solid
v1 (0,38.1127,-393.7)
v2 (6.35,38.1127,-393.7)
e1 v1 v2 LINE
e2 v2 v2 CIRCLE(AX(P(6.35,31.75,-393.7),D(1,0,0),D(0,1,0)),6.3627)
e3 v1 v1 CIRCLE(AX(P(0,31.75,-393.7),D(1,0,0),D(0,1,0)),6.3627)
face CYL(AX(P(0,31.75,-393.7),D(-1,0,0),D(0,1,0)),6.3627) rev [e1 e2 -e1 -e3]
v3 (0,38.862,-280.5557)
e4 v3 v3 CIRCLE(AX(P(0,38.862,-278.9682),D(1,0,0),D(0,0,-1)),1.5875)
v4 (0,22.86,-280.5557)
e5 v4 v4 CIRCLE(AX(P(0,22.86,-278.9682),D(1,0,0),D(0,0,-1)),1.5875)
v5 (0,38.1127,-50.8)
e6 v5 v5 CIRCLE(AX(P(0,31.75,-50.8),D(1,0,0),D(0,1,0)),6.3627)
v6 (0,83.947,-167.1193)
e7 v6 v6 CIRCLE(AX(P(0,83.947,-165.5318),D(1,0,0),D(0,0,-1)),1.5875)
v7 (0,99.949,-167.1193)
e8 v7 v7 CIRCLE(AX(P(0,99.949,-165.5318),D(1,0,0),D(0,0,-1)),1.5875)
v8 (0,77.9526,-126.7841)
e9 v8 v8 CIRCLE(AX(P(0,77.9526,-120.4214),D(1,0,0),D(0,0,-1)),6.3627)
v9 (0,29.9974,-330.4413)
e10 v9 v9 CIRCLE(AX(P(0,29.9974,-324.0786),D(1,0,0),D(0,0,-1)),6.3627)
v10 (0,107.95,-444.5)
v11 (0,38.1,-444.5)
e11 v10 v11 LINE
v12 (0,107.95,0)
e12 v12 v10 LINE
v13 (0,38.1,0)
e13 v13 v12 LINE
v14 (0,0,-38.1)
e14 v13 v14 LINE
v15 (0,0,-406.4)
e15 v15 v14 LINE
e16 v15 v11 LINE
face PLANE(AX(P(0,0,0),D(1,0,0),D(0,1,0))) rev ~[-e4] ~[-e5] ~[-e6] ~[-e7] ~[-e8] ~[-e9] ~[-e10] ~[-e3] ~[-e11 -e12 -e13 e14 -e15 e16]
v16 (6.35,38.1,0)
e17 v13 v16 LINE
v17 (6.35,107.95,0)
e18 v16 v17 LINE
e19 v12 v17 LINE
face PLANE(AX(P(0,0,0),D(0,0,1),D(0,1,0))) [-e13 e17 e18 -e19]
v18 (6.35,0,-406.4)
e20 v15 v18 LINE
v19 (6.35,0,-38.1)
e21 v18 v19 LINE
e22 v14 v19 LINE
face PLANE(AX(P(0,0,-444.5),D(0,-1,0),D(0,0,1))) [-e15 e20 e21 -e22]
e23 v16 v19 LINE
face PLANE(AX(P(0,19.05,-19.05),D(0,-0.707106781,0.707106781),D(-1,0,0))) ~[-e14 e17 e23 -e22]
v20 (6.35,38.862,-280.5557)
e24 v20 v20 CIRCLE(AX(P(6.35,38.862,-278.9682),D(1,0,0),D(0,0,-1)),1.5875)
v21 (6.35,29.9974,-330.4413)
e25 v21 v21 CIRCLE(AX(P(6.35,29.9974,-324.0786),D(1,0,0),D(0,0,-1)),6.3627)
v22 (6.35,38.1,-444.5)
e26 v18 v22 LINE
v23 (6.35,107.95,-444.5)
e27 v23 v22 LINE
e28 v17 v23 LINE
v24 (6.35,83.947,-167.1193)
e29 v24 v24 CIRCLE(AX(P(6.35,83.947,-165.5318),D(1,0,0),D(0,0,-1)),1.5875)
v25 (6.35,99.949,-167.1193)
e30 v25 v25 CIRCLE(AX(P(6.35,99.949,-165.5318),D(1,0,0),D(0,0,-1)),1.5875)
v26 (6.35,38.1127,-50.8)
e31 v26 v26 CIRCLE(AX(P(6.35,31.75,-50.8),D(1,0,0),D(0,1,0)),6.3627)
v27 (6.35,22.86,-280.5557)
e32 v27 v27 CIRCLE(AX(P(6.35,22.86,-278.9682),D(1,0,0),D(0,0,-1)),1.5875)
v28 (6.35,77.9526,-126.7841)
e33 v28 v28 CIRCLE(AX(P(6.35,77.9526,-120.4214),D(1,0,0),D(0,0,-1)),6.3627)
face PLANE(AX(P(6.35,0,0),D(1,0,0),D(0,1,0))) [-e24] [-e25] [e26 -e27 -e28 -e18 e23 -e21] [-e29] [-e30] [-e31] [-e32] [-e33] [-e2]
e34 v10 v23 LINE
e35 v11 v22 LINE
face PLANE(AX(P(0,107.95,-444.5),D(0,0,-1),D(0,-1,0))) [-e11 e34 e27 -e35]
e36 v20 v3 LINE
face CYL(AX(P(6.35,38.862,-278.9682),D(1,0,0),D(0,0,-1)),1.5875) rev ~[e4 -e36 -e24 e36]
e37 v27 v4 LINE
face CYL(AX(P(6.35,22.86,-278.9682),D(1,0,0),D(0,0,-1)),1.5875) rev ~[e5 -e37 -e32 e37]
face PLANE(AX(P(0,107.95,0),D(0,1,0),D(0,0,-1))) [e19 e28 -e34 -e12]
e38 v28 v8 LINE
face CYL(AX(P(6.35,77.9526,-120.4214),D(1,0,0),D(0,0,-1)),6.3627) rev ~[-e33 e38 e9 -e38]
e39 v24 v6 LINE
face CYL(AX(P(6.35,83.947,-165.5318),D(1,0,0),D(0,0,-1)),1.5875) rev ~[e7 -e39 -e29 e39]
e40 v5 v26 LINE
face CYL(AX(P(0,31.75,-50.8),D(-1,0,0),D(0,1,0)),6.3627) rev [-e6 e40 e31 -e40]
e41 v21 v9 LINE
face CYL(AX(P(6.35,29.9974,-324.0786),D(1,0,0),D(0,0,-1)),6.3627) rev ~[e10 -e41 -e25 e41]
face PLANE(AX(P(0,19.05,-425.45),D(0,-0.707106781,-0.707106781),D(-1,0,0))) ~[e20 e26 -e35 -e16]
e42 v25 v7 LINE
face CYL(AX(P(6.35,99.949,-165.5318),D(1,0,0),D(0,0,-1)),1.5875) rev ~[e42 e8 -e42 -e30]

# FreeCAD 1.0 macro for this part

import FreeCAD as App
import Part
import Sketcher
Q = App.Units.Quantity


def edges_at(feature, points):
    """Names of the edges that pass closest to the given points."""
    edges = feature.Shape.Edges
    near = lambda p: min(range(len(edges)), key=lambda i: edges[i].distToShape(Part.Vertex(*p))[0])
    return sorted({f"Edge{near(p) + 1}" for p in points})

doc = App.newDocument("Part")
params = doc.addObject("Spreadsheet::Sheet", "Params")
for row, (alias, value) in enumerate([
    ("sketch1_diameter", "0.501 in"),
    ("sketch1_height", "17.5 in"),
    ("sketch1_width", "4.25 in"),
    ("pad1_length", "0.25 in"),
    ("chamfer_size", "1.5 in"),
    ("chamfer2_size", "1.5 in"),
    ("sketch2_diameter", "0.501 in"),
    ("pocket1_length", "1 in"),
    ("sketch3_diameter", "0.125 in"),
    ("pocket2_length", "1 in"),
], start=1):
    params.set(f"A{row}", alias)
    params.set(f"B{row}", "=" + value)
    params.setAlias(f"B{row}", alias)

body = doc.addObject("PartDesign::Body", "Body")

# Sketch on YZ plane
sketch1 = body.newObject("Sketcher::SketchObject", "Sketch")
sketch1.AttachmentSupport = (doc.getObject("YZ_Plane"), [""])
sketch1.MapMode = "FlatFace"
sketch1.addGeometry([
    Part.LineSegment(App.Vector(107.95, 0, 0), App.Vector(0, 0, 0)),  # 0
    Part.LineSegment(App.Vector(0, 0, 0), App.Vector(0, -444.5, 0)),  # 1
    Part.LineSegment(App.Vector(0, -444.5, 0), App.Vector(107.95, -444.5, 0)),  # 2
    Part.LineSegment(App.Vector(107.95, -444.5, 0), App.Vector(107.95, 0, 0)),  # 3
    Part.Circle(App.Vector(31.75, -393.7, 0), App.Vector(0, 0, 1), 6.3627),  # 4
    Part.Circle(App.Vector(31.75, -50.8, 0), App.Vector(0, 0, 1), 6.3627),  # 5
], False)
sketch1.addConstraint([
    Sketcher.Constraint("Coincident", 0, 2, 1, 1),
    Sketcher.Constraint("Coincident", 1, 2, 2, 1),
    Sketcher.Constraint("Coincident", 2, 2, 3, 1),
    Sketcher.Constraint("Coincident", 3, 2, 0, 1),
    Sketcher.Constraint("Horizontal", 0),
    Sketcher.Constraint("Vertical", 1),
    Sketcher.Constraint("Horizontal", 2),
    Sketcher.Constraint("Vertical", 3),
    Sketcher.Constraint("Coincident", 0, 2, -1, 1),
    Sketcher.Constraint("Equal", 4, 5),
    Sketcher.Constraint("Vertical", 4, 3, 5, 3),
    Sketcher.Constraint("Diameter", 4, Q("0.501 in")),
    Sketcher.Constraint("DistanceY", 1, 2, 1, 1, Q("17.5 in")),
    Sketcher.Constraint("DistanceY", 5, 3, -1, 1, Q("2 in")),
    Sketcher.Constraint("DistanceY", 1, 2, 4, 3, Q("2 in")),
    Sketcher.Constraint("DistanceX", 0, 2, 0, 1, Q("4.25 in")),
    Sketcher.Constraint("DistanceX", -1, 1, 4, 3, Q("1.25 in")),
])
sketch1.setExpression("Constraints[11]", "Params.sketch1_diameter")
sketch1.setExpression("Constraints[12]", "Params.sketch1_height")
sketch1.setExpression("Constraints[15]", "Params.sketch1_width")
pad1 = body.newObject("PartDesign::Pad", "Pad")
pad1.Profile = sketch1
pad1.setExpression("Length", "Params.pad1_length")
doc.recompute()

chamfer = body.newObject("PartDesign::Chamfer", "Chamfer")
chamfer.Base = (pad1, edges_at(pad1, [(3.175, 0, 0)]))
chamfer.setExpression("Size", "Params.chamfer_size")
doc.recompute()

chamfer2 = body.newObject("PartDesign::Chamfer", "Chamfer001")
chamfer2.Base = (chamfer, edges_at(chamfer, [(3.175, 0, -444.5)]))
chamfer2.setExpression("Size", "Params.chamfer2_size")

# Sketch on YZ plane
sketch2 = body.newObject("Sketcher::SketchObject", "Sketch001")
sketch2.AttachmentSupport = (doc.getObject("YZ_Plane"), [""])
sketch2.MapMode = "FlatFace"
sketch2.AttachmentOffset = App.Placement(App.Vector(0, 0, 0.25 * 25.4), App.Rotation())
sketch2.addGeometry([
    Part.Circle(App.Vector(77.9526, -120.4214, 0), App.Vector(0, 0, 1), 6.3627),
    Part.Circle(App.Vector(29.9974, -324.0786, 0), App.Vector(0, 0, 1), 6.3627),
], False)
sketch2.addConstraint([
    Sketcher.Constraint("Equal", 0, 1),
    Sketcher.Constraint("Diameter", 0, Q("0.501 in")),
    Sketcher.Constraint("DistanceY", 0, 3, -1, 1, Q("4.741 in")),
    Sketcher.Constraint("DistanceX", -1, 1, 1, 3, Q("1.181 in")),
    Sketcher.Constraint("DistanceX", -1, 1, 0, 3, Q("3.069 in")),
    Sketcher.Constraint("DistanceY", 1, 3, -1, 1, Q("12.759 in")),
])
sketch2.setExpression("Constraints[1]", "Params.sketch2_diameter")
pocket1 = body.newObject("PartDesign::Pocket", "Pocket")
pocket1.Profile = sketch2
pocket1.setExpression("Length", "Params.pocket1_length")

# Sketch on YZ plane
sketch3 = body.newObject("Sketcher::SketchObject", "Sketch002")
sketch3.AttachmentSupport = (doc.getObject("YZ_Plane"), [""])
sketch3.MapMode = "FlatFace"
sketch3.AttachmentOffset = App.Placement(App.Vector(0, 0, 0.25 * 25.4), App.Rotation())
sketch3.addGeometry([
    Part.Circle(App.Vector(99.949, -165.5318, 0), App.Vector(0, 0, 1), 1.5875),
    Part.Circle(App.Vector(83.947, -165.5318, 0), App.Vector(0, 0, 1), 1.5875),
    Part.Circle(App.Vector(22.86, -278.9682, 0), App.Vector(0, 0, 1), 1.5875),
    Part.Circle(App.Vector(38.862, -278.9682, 0), App.Vector(0, 0, 1), 1.5875),
], False)
sketch3.addConstraint([
    Sketcher.Constraint("Equal", 0, 1),
    Sketcher.Constraint("Equal", 1, 2),
    Sketcher.Constraint("Equal", 2, 3),
    Sketcher.Constraint("Horizontal", 0, 3, 1, 3),
    Sketcher.Constraint("Horizontal", 2, 3, 3, 3),
    Sketcher.Constraint("Diameter", 0, Q("0.125 in")),
    Sketcher.Constraint("DistanceX", -1, 1, 2, 3, Q("0.9 in")),
    Sketcher.Constraint("DistanceX", 1, 3, 0, 3, Q("0.63 in")),
    Sketcher.Constraint("DistanceX", 2, 3, 3, 3, Q("0.63 in")),
    Sketcher.Constraint("DistanceY", 0, 3, -1, 1, Q("6.517 in")),
    Sketcher.Constraint("DistanceX", -1, 1, 0, 3, Q("3.935 in")),
    Sketcher.Constraint("DistanceY", 2, 3, -1, 1, Q("10.983 in")),
])
sketch3.setExpression("Constraints[5]", "Params.sketch3_diameter")
pocket2 = body.newObject("PartDesign::Pocket", "Pocket001")
pocket2.Profile = sketch3
pocket2.setExpression("Length", "Params.pocket2_length")

doc.recompute()
